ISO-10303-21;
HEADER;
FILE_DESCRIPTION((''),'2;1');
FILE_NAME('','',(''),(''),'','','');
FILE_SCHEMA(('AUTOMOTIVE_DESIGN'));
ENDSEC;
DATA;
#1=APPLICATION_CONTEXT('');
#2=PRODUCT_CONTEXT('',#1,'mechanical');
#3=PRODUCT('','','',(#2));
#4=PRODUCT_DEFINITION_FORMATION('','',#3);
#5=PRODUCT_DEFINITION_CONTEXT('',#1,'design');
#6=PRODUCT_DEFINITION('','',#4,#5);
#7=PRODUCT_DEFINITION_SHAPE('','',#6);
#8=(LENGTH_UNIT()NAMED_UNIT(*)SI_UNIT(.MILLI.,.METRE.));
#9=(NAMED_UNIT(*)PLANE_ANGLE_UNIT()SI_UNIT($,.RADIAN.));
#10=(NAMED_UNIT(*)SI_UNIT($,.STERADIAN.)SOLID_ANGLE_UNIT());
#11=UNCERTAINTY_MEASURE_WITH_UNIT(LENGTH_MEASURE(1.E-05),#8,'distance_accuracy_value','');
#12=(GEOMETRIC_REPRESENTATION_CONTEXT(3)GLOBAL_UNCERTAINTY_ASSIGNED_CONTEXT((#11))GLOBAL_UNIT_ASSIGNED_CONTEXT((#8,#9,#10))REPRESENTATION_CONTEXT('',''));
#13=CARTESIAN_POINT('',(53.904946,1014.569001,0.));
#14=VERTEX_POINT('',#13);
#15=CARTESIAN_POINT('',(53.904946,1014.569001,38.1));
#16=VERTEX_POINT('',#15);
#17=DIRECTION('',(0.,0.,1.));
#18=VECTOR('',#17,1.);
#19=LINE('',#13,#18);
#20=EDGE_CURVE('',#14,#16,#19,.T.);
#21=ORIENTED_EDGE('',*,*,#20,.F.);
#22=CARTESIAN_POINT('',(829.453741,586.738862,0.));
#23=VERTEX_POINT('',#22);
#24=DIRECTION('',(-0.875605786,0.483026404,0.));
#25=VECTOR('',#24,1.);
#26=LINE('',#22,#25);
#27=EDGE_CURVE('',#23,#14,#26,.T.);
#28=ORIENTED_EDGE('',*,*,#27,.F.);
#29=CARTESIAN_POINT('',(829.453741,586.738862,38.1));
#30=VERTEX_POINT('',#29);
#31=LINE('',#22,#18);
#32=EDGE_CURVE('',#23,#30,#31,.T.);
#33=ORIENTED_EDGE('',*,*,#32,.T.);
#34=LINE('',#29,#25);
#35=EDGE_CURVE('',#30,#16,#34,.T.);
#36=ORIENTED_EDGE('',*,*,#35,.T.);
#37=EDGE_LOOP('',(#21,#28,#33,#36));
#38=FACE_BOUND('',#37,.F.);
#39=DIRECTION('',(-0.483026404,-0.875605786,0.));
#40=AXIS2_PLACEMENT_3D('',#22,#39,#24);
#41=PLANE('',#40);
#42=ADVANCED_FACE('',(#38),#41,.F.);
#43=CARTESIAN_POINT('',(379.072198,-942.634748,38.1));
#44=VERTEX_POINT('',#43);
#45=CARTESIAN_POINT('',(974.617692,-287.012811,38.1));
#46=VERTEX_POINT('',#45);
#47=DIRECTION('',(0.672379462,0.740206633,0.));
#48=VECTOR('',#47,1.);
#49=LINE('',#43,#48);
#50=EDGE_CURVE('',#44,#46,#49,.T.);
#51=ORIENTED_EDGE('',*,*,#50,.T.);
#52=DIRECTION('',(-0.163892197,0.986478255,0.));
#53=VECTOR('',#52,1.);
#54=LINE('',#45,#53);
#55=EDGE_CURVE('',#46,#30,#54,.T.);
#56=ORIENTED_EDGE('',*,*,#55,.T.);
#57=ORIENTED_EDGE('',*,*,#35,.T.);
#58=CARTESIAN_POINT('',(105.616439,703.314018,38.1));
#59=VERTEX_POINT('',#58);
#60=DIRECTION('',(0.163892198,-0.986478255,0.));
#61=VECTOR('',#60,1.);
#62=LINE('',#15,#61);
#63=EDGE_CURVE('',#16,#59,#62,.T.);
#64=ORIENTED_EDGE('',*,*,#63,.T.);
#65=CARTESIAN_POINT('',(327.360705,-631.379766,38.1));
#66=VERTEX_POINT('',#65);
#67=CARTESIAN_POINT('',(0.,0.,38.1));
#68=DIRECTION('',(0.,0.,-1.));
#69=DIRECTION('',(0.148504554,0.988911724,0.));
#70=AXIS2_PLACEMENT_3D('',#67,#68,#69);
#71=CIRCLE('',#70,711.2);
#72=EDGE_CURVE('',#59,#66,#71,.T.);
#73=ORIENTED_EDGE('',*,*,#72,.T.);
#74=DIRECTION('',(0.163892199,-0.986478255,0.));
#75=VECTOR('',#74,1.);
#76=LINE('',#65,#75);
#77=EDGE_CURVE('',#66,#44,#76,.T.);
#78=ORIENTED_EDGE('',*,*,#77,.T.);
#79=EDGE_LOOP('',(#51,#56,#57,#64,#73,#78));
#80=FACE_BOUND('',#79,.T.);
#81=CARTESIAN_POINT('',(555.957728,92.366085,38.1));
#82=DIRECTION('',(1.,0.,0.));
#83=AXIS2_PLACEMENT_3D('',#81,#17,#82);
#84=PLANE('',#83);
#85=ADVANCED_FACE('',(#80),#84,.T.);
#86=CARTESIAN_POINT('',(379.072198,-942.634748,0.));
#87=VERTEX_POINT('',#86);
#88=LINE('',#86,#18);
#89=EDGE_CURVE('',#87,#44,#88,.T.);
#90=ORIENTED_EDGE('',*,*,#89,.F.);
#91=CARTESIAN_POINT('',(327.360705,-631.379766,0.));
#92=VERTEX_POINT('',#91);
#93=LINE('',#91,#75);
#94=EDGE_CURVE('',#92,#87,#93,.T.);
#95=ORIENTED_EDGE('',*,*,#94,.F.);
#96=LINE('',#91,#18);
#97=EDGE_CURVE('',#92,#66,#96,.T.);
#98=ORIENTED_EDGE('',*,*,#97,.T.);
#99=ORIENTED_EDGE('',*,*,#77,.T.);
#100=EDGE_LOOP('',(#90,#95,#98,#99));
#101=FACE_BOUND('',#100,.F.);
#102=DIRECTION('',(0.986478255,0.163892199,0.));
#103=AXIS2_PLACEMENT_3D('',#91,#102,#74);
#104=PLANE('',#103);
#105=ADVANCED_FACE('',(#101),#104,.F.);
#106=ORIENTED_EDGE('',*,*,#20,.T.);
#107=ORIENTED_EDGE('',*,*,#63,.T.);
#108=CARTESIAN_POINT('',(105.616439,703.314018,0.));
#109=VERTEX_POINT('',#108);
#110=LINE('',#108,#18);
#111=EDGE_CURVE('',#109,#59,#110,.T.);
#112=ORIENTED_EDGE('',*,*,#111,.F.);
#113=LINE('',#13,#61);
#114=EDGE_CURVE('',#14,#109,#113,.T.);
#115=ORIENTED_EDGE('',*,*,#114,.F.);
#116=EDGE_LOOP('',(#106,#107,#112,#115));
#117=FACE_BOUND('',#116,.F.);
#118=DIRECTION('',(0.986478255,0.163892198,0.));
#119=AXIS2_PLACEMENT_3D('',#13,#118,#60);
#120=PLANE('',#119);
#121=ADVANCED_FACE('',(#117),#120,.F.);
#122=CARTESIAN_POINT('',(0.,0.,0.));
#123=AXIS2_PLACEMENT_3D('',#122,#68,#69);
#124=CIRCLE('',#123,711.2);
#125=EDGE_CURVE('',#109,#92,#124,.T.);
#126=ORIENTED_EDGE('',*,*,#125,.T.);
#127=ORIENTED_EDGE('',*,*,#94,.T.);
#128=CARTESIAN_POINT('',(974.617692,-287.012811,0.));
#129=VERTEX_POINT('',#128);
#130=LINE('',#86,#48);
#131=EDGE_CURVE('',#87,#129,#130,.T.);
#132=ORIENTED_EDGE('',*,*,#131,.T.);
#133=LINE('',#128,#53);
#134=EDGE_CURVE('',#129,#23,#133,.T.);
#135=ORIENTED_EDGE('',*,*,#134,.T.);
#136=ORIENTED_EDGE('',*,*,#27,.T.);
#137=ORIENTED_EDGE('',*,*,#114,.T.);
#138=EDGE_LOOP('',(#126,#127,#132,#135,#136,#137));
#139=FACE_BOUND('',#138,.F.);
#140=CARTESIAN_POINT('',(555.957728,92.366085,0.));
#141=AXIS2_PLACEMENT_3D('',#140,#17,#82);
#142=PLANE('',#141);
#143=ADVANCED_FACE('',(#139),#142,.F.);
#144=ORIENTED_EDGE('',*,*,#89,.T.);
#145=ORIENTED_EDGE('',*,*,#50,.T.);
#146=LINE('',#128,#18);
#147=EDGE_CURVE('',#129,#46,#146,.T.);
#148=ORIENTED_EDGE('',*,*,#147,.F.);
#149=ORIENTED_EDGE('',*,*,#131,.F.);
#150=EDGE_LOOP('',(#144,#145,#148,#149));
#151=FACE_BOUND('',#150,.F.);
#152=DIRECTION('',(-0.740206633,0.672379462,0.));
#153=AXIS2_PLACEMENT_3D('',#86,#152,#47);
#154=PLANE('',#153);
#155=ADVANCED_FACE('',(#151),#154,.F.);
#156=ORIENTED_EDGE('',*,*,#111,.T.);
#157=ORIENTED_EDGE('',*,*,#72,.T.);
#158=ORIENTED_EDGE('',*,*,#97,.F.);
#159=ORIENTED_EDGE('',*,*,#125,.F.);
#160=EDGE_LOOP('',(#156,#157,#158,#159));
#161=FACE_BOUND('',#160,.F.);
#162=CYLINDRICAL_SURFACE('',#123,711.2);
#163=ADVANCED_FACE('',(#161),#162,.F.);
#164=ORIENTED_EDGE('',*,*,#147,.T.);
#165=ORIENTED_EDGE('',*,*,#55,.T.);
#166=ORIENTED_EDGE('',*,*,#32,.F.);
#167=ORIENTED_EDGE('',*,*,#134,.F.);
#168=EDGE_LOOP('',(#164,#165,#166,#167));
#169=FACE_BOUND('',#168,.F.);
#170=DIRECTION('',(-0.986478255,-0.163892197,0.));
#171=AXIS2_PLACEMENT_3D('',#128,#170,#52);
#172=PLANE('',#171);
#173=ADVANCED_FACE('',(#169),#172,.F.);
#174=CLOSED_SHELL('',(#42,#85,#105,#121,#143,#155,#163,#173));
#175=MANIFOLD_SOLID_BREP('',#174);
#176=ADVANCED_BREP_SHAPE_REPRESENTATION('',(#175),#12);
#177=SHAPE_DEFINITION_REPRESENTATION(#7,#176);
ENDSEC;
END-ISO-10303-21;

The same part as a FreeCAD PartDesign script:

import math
import FreeCAD as App
import Part
import Sketcher
Q = App.Units.Quantity

doc = App.newDocument("Part")
body = doc.addObject("PartDesign::Body", "Body")

# Sketch on XY plane
sketch1 = body.newObject("Sketcher::SketchObject", "Sketch")
sketch1.AttachmentSupport = (doc.getObject("XY_Plane"), [""])
sketch1.MapMode = "FlatFace"
sketch1.addGeometry([
    Part.ArcOfCircle(Part.Circle(App.Vector(0, 0, 0), App.Vector(0, 0, 1), 711), math.radians(-63), math.radians(81)),  # 0
    Part.LineSegment(App.Vector(327, -631, 0), App.Vector(379, -943, 0)),  # 1
    Part.LineSegment(App.Vector(379, -943, 0), App.Vector(975, -287, 0)),  # 2
    Part.LineSegment(App.Vector(975, -287, 0), App.Vector(829, 587, 0)),  # 3
    Part.LineSegment(App.Vector(829, 587, 0), App.Vector(54, 1015, 0)),  # 4
    Part.LineSegment(App.Vector(54, 1015, 0), App.Vector(106, 703, 0)),  # 5
], False)
sketch1.addConstraint([
    Sketcher.Constraint("Coincident", 0, 1, 1, 1),
    Sketcher.Constraint("Coincident", 1, 2, 2, 1),
    Sketcher.Constraint("Coincident", 2, 2, 3, 1),
    Sketcher.Constraint("Coincident", 3, 2, 4, 1),
    Sketcher.Constraint("Coincident", 4, 2, 5, 1),
    Sketcher.Constraint("Coincident", 5, 2, 0, 2),
    Sketcher.Constraint("Coincident", 0, 3, -1, 1),
    Sketcher.Constraint("Parallel", 1, 3),
    Sketcher.Constraint("Parallel", 3, 5),
    Sketcher.Constraint("Equal", 2, 3),
    Sketcher.Constraint("Equal", 3, 4),
    Sketcher.Constraint("Equal", 1, 5),
    Sketcher.Constraint("Radius", 0, Q("28 in")),
    Sketcher.Constraint("DistanceX", -1, 1, 1, 2, Q("379.072198 mm")),
    Sketcher.Constraint("DistanceY", -1, 1, 4, 2, Q("1014.569001 mm")),
    Sketcher.Constraint("DistanceX", 5, 2, 3, 2, Q("723.837302 mm")),
    Sketcher.Constraint("Distance", 1, Q("315.521382 mm")),
    Sketcher.Constraint("DistanceX", -1, 1, 2, 2, Q("974.617692 mm")),
])
pad1 = body.newObject("PartDesign::Pad", "Pad")
pad1.Profile = sketch1
pad1.Length = Q("1.5 in")

doc.recompute()
